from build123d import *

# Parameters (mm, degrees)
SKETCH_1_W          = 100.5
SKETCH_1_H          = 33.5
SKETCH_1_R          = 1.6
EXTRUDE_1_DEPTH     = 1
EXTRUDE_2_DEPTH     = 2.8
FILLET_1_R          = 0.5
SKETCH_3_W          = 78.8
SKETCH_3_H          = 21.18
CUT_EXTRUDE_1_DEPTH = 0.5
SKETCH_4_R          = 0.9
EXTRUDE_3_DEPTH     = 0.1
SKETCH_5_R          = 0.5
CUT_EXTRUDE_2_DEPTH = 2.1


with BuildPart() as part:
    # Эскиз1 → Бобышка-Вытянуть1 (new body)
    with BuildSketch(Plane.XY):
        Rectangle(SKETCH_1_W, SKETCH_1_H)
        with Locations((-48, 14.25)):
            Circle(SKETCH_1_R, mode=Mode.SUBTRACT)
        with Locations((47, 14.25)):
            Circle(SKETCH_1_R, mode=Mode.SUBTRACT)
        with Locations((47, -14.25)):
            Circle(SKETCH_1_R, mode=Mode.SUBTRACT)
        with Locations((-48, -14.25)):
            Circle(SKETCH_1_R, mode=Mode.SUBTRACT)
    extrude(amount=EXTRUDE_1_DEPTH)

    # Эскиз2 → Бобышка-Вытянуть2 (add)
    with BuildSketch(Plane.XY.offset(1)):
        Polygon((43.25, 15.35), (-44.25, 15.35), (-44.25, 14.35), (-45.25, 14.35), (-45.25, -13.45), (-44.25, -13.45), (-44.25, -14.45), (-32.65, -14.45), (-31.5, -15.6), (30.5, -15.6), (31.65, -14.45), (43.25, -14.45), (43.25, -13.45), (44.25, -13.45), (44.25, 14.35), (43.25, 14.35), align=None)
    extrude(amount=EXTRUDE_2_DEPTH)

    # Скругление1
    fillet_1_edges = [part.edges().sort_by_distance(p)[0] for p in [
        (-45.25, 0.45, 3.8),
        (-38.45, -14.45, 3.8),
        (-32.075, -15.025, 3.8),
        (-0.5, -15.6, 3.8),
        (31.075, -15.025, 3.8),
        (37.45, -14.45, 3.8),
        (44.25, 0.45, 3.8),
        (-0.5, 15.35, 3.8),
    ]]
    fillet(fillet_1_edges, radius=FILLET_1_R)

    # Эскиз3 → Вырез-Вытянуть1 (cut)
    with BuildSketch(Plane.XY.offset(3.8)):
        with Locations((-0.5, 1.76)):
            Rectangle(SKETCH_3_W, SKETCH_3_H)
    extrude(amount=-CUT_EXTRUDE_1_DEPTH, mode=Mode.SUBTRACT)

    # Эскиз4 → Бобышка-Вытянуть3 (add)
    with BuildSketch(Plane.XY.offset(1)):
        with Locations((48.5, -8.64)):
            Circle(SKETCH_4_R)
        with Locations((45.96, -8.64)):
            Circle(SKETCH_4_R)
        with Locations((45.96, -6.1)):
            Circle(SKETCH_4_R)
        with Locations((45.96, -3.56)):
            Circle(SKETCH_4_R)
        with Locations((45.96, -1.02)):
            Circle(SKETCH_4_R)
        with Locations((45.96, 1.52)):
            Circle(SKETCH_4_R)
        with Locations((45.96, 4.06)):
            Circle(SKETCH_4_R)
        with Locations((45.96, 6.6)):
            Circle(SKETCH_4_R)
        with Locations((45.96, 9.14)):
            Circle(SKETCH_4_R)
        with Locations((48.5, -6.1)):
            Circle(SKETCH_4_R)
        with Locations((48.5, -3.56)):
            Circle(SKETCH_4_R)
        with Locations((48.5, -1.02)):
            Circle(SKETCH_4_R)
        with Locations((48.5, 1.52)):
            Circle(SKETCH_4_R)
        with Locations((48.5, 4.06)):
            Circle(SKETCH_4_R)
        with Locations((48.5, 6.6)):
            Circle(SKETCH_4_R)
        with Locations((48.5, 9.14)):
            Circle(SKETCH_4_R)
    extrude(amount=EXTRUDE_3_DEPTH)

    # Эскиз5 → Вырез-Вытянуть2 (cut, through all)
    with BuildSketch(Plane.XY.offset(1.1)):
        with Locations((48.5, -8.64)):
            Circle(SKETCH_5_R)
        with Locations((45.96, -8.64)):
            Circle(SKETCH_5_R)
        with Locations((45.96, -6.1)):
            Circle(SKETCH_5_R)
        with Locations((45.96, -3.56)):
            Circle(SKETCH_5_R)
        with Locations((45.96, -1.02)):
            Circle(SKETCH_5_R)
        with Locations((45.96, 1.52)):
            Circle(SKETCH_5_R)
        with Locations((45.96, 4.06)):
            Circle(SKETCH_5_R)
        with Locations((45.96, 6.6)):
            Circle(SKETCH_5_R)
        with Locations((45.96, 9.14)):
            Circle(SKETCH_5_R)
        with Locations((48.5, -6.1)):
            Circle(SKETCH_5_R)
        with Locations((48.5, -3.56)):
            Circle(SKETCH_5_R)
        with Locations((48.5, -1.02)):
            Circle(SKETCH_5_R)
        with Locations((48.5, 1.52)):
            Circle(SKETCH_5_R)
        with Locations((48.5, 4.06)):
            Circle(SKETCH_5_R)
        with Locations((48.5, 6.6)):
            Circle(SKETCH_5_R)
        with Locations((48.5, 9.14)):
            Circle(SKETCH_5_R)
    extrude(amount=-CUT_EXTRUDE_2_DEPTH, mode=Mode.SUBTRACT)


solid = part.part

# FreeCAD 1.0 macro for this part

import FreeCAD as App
import Part
import Sketcher

V = App.Vector
Q = App.Units.Quantity


def edges_at(feature, points):
    """Names of the edges that pass closest to the given points."""
    edges = feature.Shape.Edges
    near = lambda p: min(range(len(edges)), key=lambda i: edges[i].distToShape(Part.Vertex(*p))[0])
    return sorted({f"Edge{near(p) + 1}" for p in points})


def add_polygon(sketch, points):
    """Adds a closed chain of lines whose ends are joined by coincident constraints."""
    first, n = sketch.GeometryCount, len(points)
    for a, b in zip(points, points[1:] + points[:1]):
        sketch.addGeometry(Part.LineSegment(App.Vector(*a, 0), App.Vector(*b, 0)), False)
    for i in range(n):
        sketch.addConstraint(Sketcher.Constraint("Coincident", first + i, 2, first + (i + 1) % n, 1))

doc = App.newDocument("Part")
body = doc.addObject("PartDesign::Body", "Body")

# Sketch on XY plane
sketch1 = body.newObject("Sketcher::SketchObject", "Sketch")
sketch1.AttachmentSupport = (doc.getObject("XY_Plane"), [""])
sketch1.MapMode = "FlatFace"
add_polygon(sketch1, [(-50.25, 16.75), (-50.25, -16.75), (50.25, -16.75), (50.25, 16.75)])  # lines 0-3
sketch1.addGeometry(Part.Circle(V(-48, -14.25, 0), V(0, 0, 1), 1.6), False)  # 4
sketch1.addGeometry(Part.Circle(V(47, -14.25, 0), V(0, 0, 1), 1.6), False)  # 5
sketch1.addGeometry(Part.Circle(V(-48, 14.25, 0), V(0, 0, 1), 1.6), False)  # 6
sketch1.addGeometry(Part.Circle(V(47, 14.25, 0), V(0, 0, 1), 1.6), False)  # 7
sketch1.addConstraint(Sketcher.Constraint("Vertical", 0))
sketch1.addConstraint(Sketcher.Constraint("Horizontal", 1))
sketch1.addConstraint(Sketcher.Constraint("Vertical", 2))
sketch1.addConstraint(Sketcher.Constraint("Horizontal", 3))
sketch1.addConstraint(Sketcher.Constraint("Equal", 4, 5))
sketch1.addConstraint(Sketcher.Constraint("Equal", 5, 6))
sketch1.addConstraint(Sketcher.Constraint("Equal", 6, 7))
sketch1.addConstraint(Sketcher.Constraint("Symmetric", 0, 2, 2, 2, -1, 1))
sketch1.addConstraint(Sketcher.Constraint("Symmetric", 4, 3, 6, 3, -1))
sketch1.addConstraint(Sketcher.Constraint("Symmetric", 5, 3, 7, 3, -1))
sketch1.addConstraint(Sketcher.Constraint("Horizontal", 4, 3, 5, 3))
sketch1.addConstraint(Sketcher.Constraint("Diameter", 4, Q("3.2 mm")))
sketch1.addConstraint(Sketcher.Constraint("DistanceX", 1, 1, 1, 2, Q("100.5 mm")))
sketch1.addConstraint(Sketcher.Constraint("DistanceY", 0, 2, 0, 1, Q("33.5 mm")))
sketch1.addConstraint(Sketcher.Constraint("DistanceX", 4, 3, -1, 1, Q("48 mm")))
sketch1.addConstraint(Sketcher.Constraint("DistanceX", -1, 1, 5, 3, Q("47 mm")))
sketch1.addConstraint(Sketcher.Constraint("DistanceY", 0, 2, 6, 3, Q("31 mm")))
pad1 = body.newObject("PartDesign::Pad", "Pad")
pad1.Profile = sketch1
pad1.Length = 1

# Sketch on XY plane
sketch2 = body.newObject("Sketcher::SketchObject", "Sketch001")
sketch2.AttachmentSupport = (doc.getObject("XY_Plane"), [""])
sketch2.MapMode = "FlatFace"
sketch2.AttachmentOffset = App.Placement(V(0, 0, 1), App.Rotation())
add_polygon(sketch2, [(43.25, 15.35), (-44.25, 15.35), (-44.25, 14.35), (-45.25, 14.35), (-45.25, -13.45), (-44.25, -13.45), (-44.25, -14.45), (-32.65, -14.45), (-31.5, -15.6), (30.5, -15.6), (31.65, -14.45), (43.25, -14.45), (43.25, -13.45), (44.25, -13.45), (44.25, 14.35), (43.25, 14.35)])  # lines 0-15
sketch2.addConstraint(Sketcher.Constraint("Horizontal", 0))
sketch2.addConstraint(Sketcher.Constraint("Vertical", 1))
sketch2.addConstraint(Sketcher.Constraint("Horizontal", 2))
sketch2.addConstraint(Sketcher.Constraint("Vertical", 3))
sketch2.addConstraint(Sketcher.Constraint("Horizontal", 4))
sketch2.addConstraint(Sketcher.Constraint("Vertical", 5))
sketch2.addConstraint(Sketcher.Constraint("Horizontal", 6))
sketch2.addConstraint(Sketcher.Constraint("Horizontal", 8))
sketch2.addConstraint(Sketcher.Constraint("Horizontal", 10))
sketch2.addConstraint(Sketcher.Constraint("Vertical", 11))
sketch2.addConstraint(Sketcher.Constraint("Horizontal", 12))
sketch2.addConstraint(Sketcher.Constraint("Vertical", 13))
sketch2.addConstraint(Sketcher.Constraint("Horizontal", 14))
sketch2.addConstraint(Sketcher.Constraint("Vertical", 15))
sketch2.addConstraint(Sketcher.Constraint("Symmetric", 4, 2, 12, 2, -2))
sketch2.addConstraint(Sketcher.Constraint("Symmetric", 1, 2, 13, 2, -2))
sketch2.addConstraint(Sketcher.Constraint("Perpendicular", 7, 9))
sketch2.addConstraint(Sketcher.Constraint("Horizontal", 6, 2, 9, 2))
sketch2.addConstraint(Sketcher.Constraint("Vertical", 11, 2, 14, 2))
sketch2.addConstraint(Sketcher.Constraint("Equal", 6, 10))
sketch2.addConstraint(Sketcher.Constraint("Equal", 4, 12))
sketch2.addConstraint(Sketcher.Constraint("Equal", 14, 1))
sketch2.addConstraint(Sketcher.Constraint("Equal", 1, 5))
sketch2.addConstraint(Sketcher.Constraint("Equal", 7, 9))
sketch2.addConstraint(Sketcher.Constraint("DistanceX", 2, 2, 2, 1, Q("1 mm")))
sketch2.addConstraint(Sketcher.Constraint("DistanceX", 8, 1, 8, 2, Q("62 mm")))
sketch2.addConstraint(Sketcher.Constraint("DistanceX", 0, 2, 0, 1, Q("87.5 mm")))
sketch2.addConstraint(Sketcher.Constraint("DistanceX", 6, 1, 6, 2, Q("11.6 mm")))
sketch2.addConstraint(Sketcher.Constraint("DistanceY", 3, 2, 3, 1, Q("27.8 mm")))
sketch2.addConstraint(Sketcher.Constraint("DistanceY", 7, 2, -1, 1, Q("15.6 mm")))
pad2 = body.newObject("PartDesign::Pad", "Pad001")
pad2.Profile = sketch2
pad2.Length = 2.8
doc.recompute()

fillet = body.newObject("PartDesign::Fillet", "Fillet")
fillet.Base = (pad2, edges_at(pad2, [
    (-45.25, 0.45, 3.8),
    (-38.45, -14.45, 3.8),
    (-32.075, -15.025, 3.8),
    (-0.5, -15.6, 3.8),
    (31.075, -15.025, 3.8),
    (37.45, -14.45, 3.8),
    (44.25, 0.45, 3.8),
    (-0.5, 15.35, 3.8),
]))
fillet.Radius = 0.5

# Sketch on XY plane
sketch3 = body.newObject("Sketcher::SketchObject", "Sketch002")
sketch3.AttachmentSupport = (doc.getObject("XY_Plane"), [""])
sketch3.MapMode = "FlatFace"
sketch3.AttachmentOffset = App.Placement(V(0, 0, 3.8), App.Rotation())
add_polygon(sketch3, [(-39.9, 12.35), (-39.9, -8.83), (38.9, -8.83), (38.9, 12.35)])  # lines 0-3
sketch3.addConstraint(Sketcher.Constraint("Vertical", 0))
sketch3.addConstraint(Sketcher.Constraint("Horizontal", 1))
sketch3.addConstraint(Sketcher.Constraint("Vertical", 2))
sketch3.addConstraint(Sketcher.Constraint("Horizontal", 3))
sketch3.addConstraint(Sketcher.Constraint("DistanceX", 1, 1, 1, 2, Q("78.8 mm")))
sketch3.addConstraint(Sketcher.Constraint("DistanceY", 0, 2, 0, 1, Q("21.18 mm")))
sketch3.addConstraint(Sketcher.Constraint("DistanceX", 0, 2, -1, 1, Q("39.9 mm")))
sketch3.addConstraint(Sketcher.Constraint("DistanceY", 0, 2, -1, 1, Q("8.83 mm")))
pocket1 = body.newObject("PartDesign::Pocket", "Pocket")
pocket1.Profile = sketch3
pocket1.Length = 0.5

# Sketch on XY plane
sketch4 = body.newObject("Sketcher::SketchObject", "Sketch003")
sketch4.AttachmentSupport = (doc.getObject("XY_Plane"), [""])
sketch4.MapMode = "FlatFace"
sketch4.AttachmentOffset = App.Placement(V(0, 0, 1), App.Rotation())
sketch4.addGeometry(Part.Circle(V(48.5, -8.64, 0), V(0, 0, 1), 0.9), False)
sketch4.addGeometry(Part.Circle(V(45.96, -8.64, 0), V(0, 0, 1), 0.9), False)
sketch4.addGeometry(Part.Circle(V(45.96, -6.1, 0), V(0, 0, 1), 0.9), False)
sketch4.addGeometry(Part.Circle(V(45.96, -3.56, 0), V(0, 0, 1), 0.9), False)
sketch4.addGeometry(Part.Circle(V(45.96, -1.02, 0), V(0, 0, 1), 0.9), False)
sketch4.addGeometry(Part.Circle(V(45.96, 1.52, 0), V(0, 0, 1), 0.9), False)
sketch4.addGeometry(Part.Circle(V(45.96, 4.06, 0), V(0, 0, 1), 0.9), False)
sketch4.addGeometry(Part.Circle(V(45.96, 6.6, 0), V(0, 0, 1), 0.9), False)
sketch4.addGeometry(Part.Circle(V(45.96, 9.14, 0), V(0, 0, 1), 0.9), False)
sketch4.addGeometry(Part.Circle(V(48.5, -6.1, 0), V(0, 0, 1), 0.9), False)
sketch4.addGeometry(Part.Circle(V(48.5, -3.56, 0), V(0, 0, 1), 0.9), False)
sketch4.addGeometry(Part.Circle(V(48.5, -1.02, 0), V(0, 0, 1), 0.9), False)
sketch4.addGeometry(Part.Circle(V(48.5, 1.52, 0), V(0, 0, 1), 0.9), False)
sketch4.addGeometry(Part.Circle(V(48.5, 4.06, 0), V(0, 0, 1), 0.9), False)
sketch4.addGeometry(Part.Circle(V(48.5, 6.6, 0), V(0, 0, 1), 0.9), False)
sketch4.addGeometry(Part.Circle(V(48.5, 9.14, 0), V(0, 0, 1), 0.9), False)
sketch4.addConstraint(Sketcher.Constraint("Equal", 0, 1))
sketch4.addConstraint(Sketcher.Constraint("Equal", 1, 2))
sketch4.addConstraint(Sketcher.Constraint("Equal", 2, 3))
sketch4.addConstraint(Sketcher.Constraint("Equal", 3, 4))
sketch4.addConstraint(Sketcher.Constraint("Equal", 4, 5))
sketch4.addConstraint(Sketcher.Constraint("Equal", 5, 6))
sketch4.addConstraint(Sketcher.Constraint("Equal", 6, 7))
sketch4.addConstraint(Sketcher.Constraint("Equal", 7, 8))
sketch4.addConstraint(Sketcher.Constraint("Equal", 8, 9))
sketch4.addConstraint(Sketcher.Constraint("Equal", 9, 10))
sketch4.addConstraint(Sketcher.Constraint("Equal", 10, 11))
sketch4.addConstraint(Sketcher.Constraint("Equal", 11, 12))
sketch4.addConstraint(Sketcher.Constraint("Equal", 12, 13))
sketch4.addConstraint(Sketcher.Constraint("Equal", 13, 14))
sketch4.addConstraint(Sketcher.Constraint("Equal", 14, 15))
sketch4.addConstraint(Sketcher.Constraint("Horizontal", 0, 3, 1, 3))
sketch4.addConstraint(Sketcher.Constraint("Horizontal", 2, 3, 9, 3))
sketch4.addConstraint(Sketcher.Constraint("Horizontal", 3, 3, 10, 3))
sketch4.addConstraint(Sketcher.Constraint("Horizontal", 4, 3, 11, 3))
sketch4.addConstraint(Sketcher.Constraint("Horizontal", 5, 3, 12, 3))
sketch4.addConstraint(Sketcher.Constraint("Horizontal", 6, 3, 13, 3))
sketch4.addConstraint(Sketcher.Constraint("Horizontal", 7, 3, 14, 3))
sketch4.addConstraint(Sketcher.Constraint("Horizontal", 8, 3, 15, 3))
sketch4.addConstraint(Sketcher.Constraint("Vertical", 1, 3, 2, 3))
sketch4.addConstraint(Sketcher.Constraint("Vertical", 2, 3, 3, 3))
sketch4.addConstraint(Sketcher.Constraint("Vertical", 3, 3, 4, 3))
sketch4.addConstraint(Sketcher.Constraint("Vertical", 4, 3, 5, 3))
sketch4.addConstraint(Sketcher.Constraint("Vertical", 5, 3, 6, 3))
sketch4.addConstraint(Sketcher.Constraint("Vertical", 6, 3, 7, 3))
sketch4.addConstraint(Sketcher.Constraint("Vertical", 7, 3, 8, 3))
sketch4.addConstraint(Sketcher.Constraint("Vertical", 0, 3, 9, 3))
sketch4.addConstraint(Sketcher.Constraint("Vertical", 9, 3, 10, 3))
sketch4.addConstraint(Sketcher.Constraint("Vertical", 10, 3, 11, 3))
sketch4.addConstraint(Sketcher.Constraint("Vertical", 11, 3, 12, 3))
sketch4.addConstraint(Sketcher.Constraint("Vertical", 12, 3, 13, 3))
sketch4.addConstraint(Sketcher.Constraint("Vertical", 13, 3, 14, 3))
sketch4.addConstraint(Sketcher.Constraint("Vertical", 14, 3, 15, 3))
sketch4.addConstraint(Sketcher.Constraint("Diameter", 0, Q("1.8 mm")))
sketch4.addConstraint(Sketcher.Constraint("DistanceX", -1, 1, 0, 3, Q("48.5 mm")))
sketch4.addConstraint(Sketcher.Constraint("DistanceY", 2, 3, -1, 1, Q("6.1 mm")))
sketch4.addConstraint(Sketcher.Constraint("DistanceY", -1, 1, 7, 3, Q("6.6 mm")))
sketch4.addConstraint(Sketcher.Constraint("DistanceY", 1, 3, 6, 3, Q("12.7 mm")))
sketch4.addConstraint(Sketcher.Constraint("DistanceY", 3, 3, 8, 3, Q("12.7 mm")))
sketch4.addConstraint(Sketcher.Constraint("DistanceY", 0, 3, -1, 1, Q("8.64 mm")))
sketch4.addConstraint(Sketcher.Constraint("DistanceX", -1, 1, 1, 3, Q("45.96 mm")))
sketch4.addConstraint(Sketcher.Constraint("DistanceY", 3, 3, -1, 1, Q("3.56 mm")))
sketch4.addConstraint(Sketcher.Constraint("DistanceY", 4, 3, -1, 1, Q("1.02 mm")))
sketch4.addConstraint(Sketcher.Constraint("DistanceY", -1, 1, 5, 3, Q("1.52 mm")))
pad3 = body.newObject("PartDesign::Pad", "Pad002")
pad3.Profile = sketch4
pad3.Length = 0.1

# Sketch on XY plane
sketch5 = body.newObject("Sketcher::SketchObject", "Sketch004")
sketch5.AttachmentSupport = (doc.getObject("XY_Plane"), [""])
sketch5.MapMode = "FlatFace"
sketch5.AttachmentOffset = App.Placement(V(0, 0, 1.1), App.Rotation())
sketch5.addGeometry(Part.Circle(V(48.5, -8.64, 0), V(0, 0, 1), 0.5), False)
sketch5.addGeometry(Part.Circle(V(45.96, -8.64, 0), V(0, 0, 1), 0.5), False)
sketch5.addGeometry(Part.Circle(V(45.96, -6.1, 0), V(0, 0, 1), 0.5), False)
sketch5.addGeometry(Part.Circle(V(45.96, -3.56, 0), V(0, 0, 1), 0.5), False)
sketch5.addGeometry(Part.Circle(V(45.96, -1.02, 0), V(0, 0, 1), 0.5), False)
sketch5.addGeometry(Part.Circle(V(45.96, 1.52, 0), V(0, 0, 1), 0.5), False)
sketch5.addGeometry(Part.Circle(V(45.96, 4.06, 0), V(0, 0, 1), 0.5), False)
sketch5.addGeometry(Part.Circle(V(45.96, 6.6, 0), V(0, 0, 1), 0.5), False)
sketch5.addGeometry(Part.Circle(V(45.96, 9.14, 0), V(0, 0, 1), 0.5), False)
sketch5.addGeometry(Part.Circle(V(48.5, -6.1, 0), V(0, 0, 1), 0.5), False)
sketch5.addGeometry(Part.Circle(V(48.5, -3.56, 0), V(0, 0, 1), 0.5), False)
sketch5.addGeometry(Part.Circle(V(48.5, -1.02, 0), V(0, 0, 1), 0.5), False)
sketch5.addGeometry(Part.Circle(V(48.5, 1.52, 0), V(0, 0, 1), 0.5), False)
sketch5.addGeometry(Part.Circle(V(48.5, 4.06, 0), V(0, 0, 1), 0.5), False)
sketch5.addGeometry(Part.Circle(V(48.5, 6.6, 0), V(0, 0, 1), 0.5), False)
sketch5.addGeometry(Part.Circle(V(48.5, 9.14, 0), V(0, 0, 1), 0.5), False)
sketch5.addConstraint(Sketcher.Constraint("Equal", 0, 1))
sketch5.addConstraint(Sketcher.Constraint("Equal", 1, 2))
sketch5.addConstraint(Sketcher.Constraint("Equal", 2, 3))
sketch5.addConstraint(Sketcher.Constraint("Equal", 3, 4))
sketch5.addConstraint(Sketcher.Constraint("Equal", 4, 5))
sketch5.addConstraint(Sketcher.Constraint("Equal", 5, 6))
sketch5.addConstraint(Sketcher.Constraint("Equal", 6, 7))
sketch5.addConstraint(Sketcher.Constraint("Equal", 7, 8))
sketch5.addConstraint(Sketcher.Constraint("Equal", 8, 9))
sketch5.addConstraint(Sketcher.Constraint("Equal", 9, 10))
sketch5.addConstraint(Sketcher.Constraint("Equal", 10, 11))
sketch5.addConstraint(Sketcher.Constraint("Equal", 11, 12))
sketch5.addConstraint(Sketcher.Constraint("Equal", 12, 13))
sketch5.addConstraint(Sketcher.Constraint("Equal", 13, 14))
sketch5.addConstraint(Sketcher.Constraint("Equal", 14, 15))
sketch5.addConstraint(Sketcher.Constraint("Horizontal", 0, 3, 1, 3))
sketch5.addConstraint(Sketcher.Constraint("Horizontal", 2, 3, 9, 3))
sketch5.addConstraint(Sketcher.Constraint("Horizontal", 3, 3, 10, 3))
sketch5.addConstraint(Sketcher.Constraint("Horizontal", 4, 3, 11, 3))
sketch5.addConstraint(Sketcher.Constraint("Horizontal", 5, 3, 12, 3))
sketch5.addConstraint(Sketcher.Constraint("Horizontal", 6, 3, 13, 3))
sketch5.addConstraint(Sketcher.Constraint("Horizontal", 7, 3, 14, 3))
sketch5.addConstraint(Sketcher.Constraint("Horizontal", 8, 3, 15, 3))
sketch5.addConstraint(Sketcher.Constraint("Vertical", 1, 3, 2, 3))
sketch5.addConstraint(Sketcher.Constraint("Vertical", 2, 3, 3, 3))
sketch5.addConstraint(Sketcher.Constraint("Vertical", 3, 3, 4, 3))
sketch5.addConstraint(Sketcher.Constraint("Vertical", 4, 3, 5, 3))
sketch5.addConstraint(Sketcher.Constraint("Vertical", 5, 3, 6, 3))
sketch5.addConstraint(Sketcher.Constraint("Vertical", 6, 3, 7, 3))
sketch5.addConstraint(Sketcher.Constraint("Vertical", 7, 3, 8, 3))
sketch5.addConstraint(Sketcher.Constraint("Vertical", 0, 3, 9, 3))
sketch5.addConstraint(Sketcher.Constraint("Vertical", 9, 3, 10, 3))
sketch5.addConstraint(Sketcher.Constraint("Vertical", 10, 3, 11, 3))
sketch5.addConstraint(Sketcher.Constraint("Vertical", 11, 3, 12, 3))
sketch5.addConstraint(Sketcher.Constraint("Vertical", 12, 3, 13, 3))
sketch5.addConstraint(Sketcher.Constraint("Vertical", 13, 3, 14, 3))
sketch5.addConstraint(Sketcher.Constraint("Vertical", 14, 3, 15, 3))
sketch5.addConstraint(Sketcher.Constraint("Diameter", 0, Q("1 mm")))
sketch5.addConstraint(Sketcher.Constraint("DistanceX", -1, 1, 0, 3, Q("48.5 mm")))
sketch5.addConstraint(Sketcher.Constraint("DistanceY", 2, 3, -1, 1, Q("6.1 mm")))
sketch5.addConstraint(Sketcher.Constraint("DistanceY", -1, 1, 7, 3, Q("6.6 mm")))
sketch5.addConstraint(Sketcher.Constraint("DistanceY", 1, 3, 6, 3, Q("12.7 mm")))
sketch5.addConstraint(Sketcher.Constraint("DistanceY", 3, 3, 8, 3, Q("12.7 mm")))
sketch5.addConstraint(Sketcher.Constraint("DistanceY", 0, 3, -1, 1, Q("8.64 mm")))
sketch5.addConstraint(Sketcher.Constraint("DistanceX", -1, 1, 1, 3, Q("45.96 mm")))
sketch5.addConstraint(Sketcher.Constraint("DistanceY", 3, 3, -1, 1, Q("3.56 mm")))
sketch5.addConstraint(Sketcher.Constraint("DistanceY", 4, 3, -1, 1, Q("1.02 mm")))
sketch5.addConstraint(Sketcher.Constraint("DistanceY", -1, 1, 5, 3, Q("1.52 mm")))
pocket2 = body.newObject("PartDesign::Pocket", "Pocket001")
pocket2.Profile = sketch5
pocket2.Type = "ThroughAll"

doc.recompute()
